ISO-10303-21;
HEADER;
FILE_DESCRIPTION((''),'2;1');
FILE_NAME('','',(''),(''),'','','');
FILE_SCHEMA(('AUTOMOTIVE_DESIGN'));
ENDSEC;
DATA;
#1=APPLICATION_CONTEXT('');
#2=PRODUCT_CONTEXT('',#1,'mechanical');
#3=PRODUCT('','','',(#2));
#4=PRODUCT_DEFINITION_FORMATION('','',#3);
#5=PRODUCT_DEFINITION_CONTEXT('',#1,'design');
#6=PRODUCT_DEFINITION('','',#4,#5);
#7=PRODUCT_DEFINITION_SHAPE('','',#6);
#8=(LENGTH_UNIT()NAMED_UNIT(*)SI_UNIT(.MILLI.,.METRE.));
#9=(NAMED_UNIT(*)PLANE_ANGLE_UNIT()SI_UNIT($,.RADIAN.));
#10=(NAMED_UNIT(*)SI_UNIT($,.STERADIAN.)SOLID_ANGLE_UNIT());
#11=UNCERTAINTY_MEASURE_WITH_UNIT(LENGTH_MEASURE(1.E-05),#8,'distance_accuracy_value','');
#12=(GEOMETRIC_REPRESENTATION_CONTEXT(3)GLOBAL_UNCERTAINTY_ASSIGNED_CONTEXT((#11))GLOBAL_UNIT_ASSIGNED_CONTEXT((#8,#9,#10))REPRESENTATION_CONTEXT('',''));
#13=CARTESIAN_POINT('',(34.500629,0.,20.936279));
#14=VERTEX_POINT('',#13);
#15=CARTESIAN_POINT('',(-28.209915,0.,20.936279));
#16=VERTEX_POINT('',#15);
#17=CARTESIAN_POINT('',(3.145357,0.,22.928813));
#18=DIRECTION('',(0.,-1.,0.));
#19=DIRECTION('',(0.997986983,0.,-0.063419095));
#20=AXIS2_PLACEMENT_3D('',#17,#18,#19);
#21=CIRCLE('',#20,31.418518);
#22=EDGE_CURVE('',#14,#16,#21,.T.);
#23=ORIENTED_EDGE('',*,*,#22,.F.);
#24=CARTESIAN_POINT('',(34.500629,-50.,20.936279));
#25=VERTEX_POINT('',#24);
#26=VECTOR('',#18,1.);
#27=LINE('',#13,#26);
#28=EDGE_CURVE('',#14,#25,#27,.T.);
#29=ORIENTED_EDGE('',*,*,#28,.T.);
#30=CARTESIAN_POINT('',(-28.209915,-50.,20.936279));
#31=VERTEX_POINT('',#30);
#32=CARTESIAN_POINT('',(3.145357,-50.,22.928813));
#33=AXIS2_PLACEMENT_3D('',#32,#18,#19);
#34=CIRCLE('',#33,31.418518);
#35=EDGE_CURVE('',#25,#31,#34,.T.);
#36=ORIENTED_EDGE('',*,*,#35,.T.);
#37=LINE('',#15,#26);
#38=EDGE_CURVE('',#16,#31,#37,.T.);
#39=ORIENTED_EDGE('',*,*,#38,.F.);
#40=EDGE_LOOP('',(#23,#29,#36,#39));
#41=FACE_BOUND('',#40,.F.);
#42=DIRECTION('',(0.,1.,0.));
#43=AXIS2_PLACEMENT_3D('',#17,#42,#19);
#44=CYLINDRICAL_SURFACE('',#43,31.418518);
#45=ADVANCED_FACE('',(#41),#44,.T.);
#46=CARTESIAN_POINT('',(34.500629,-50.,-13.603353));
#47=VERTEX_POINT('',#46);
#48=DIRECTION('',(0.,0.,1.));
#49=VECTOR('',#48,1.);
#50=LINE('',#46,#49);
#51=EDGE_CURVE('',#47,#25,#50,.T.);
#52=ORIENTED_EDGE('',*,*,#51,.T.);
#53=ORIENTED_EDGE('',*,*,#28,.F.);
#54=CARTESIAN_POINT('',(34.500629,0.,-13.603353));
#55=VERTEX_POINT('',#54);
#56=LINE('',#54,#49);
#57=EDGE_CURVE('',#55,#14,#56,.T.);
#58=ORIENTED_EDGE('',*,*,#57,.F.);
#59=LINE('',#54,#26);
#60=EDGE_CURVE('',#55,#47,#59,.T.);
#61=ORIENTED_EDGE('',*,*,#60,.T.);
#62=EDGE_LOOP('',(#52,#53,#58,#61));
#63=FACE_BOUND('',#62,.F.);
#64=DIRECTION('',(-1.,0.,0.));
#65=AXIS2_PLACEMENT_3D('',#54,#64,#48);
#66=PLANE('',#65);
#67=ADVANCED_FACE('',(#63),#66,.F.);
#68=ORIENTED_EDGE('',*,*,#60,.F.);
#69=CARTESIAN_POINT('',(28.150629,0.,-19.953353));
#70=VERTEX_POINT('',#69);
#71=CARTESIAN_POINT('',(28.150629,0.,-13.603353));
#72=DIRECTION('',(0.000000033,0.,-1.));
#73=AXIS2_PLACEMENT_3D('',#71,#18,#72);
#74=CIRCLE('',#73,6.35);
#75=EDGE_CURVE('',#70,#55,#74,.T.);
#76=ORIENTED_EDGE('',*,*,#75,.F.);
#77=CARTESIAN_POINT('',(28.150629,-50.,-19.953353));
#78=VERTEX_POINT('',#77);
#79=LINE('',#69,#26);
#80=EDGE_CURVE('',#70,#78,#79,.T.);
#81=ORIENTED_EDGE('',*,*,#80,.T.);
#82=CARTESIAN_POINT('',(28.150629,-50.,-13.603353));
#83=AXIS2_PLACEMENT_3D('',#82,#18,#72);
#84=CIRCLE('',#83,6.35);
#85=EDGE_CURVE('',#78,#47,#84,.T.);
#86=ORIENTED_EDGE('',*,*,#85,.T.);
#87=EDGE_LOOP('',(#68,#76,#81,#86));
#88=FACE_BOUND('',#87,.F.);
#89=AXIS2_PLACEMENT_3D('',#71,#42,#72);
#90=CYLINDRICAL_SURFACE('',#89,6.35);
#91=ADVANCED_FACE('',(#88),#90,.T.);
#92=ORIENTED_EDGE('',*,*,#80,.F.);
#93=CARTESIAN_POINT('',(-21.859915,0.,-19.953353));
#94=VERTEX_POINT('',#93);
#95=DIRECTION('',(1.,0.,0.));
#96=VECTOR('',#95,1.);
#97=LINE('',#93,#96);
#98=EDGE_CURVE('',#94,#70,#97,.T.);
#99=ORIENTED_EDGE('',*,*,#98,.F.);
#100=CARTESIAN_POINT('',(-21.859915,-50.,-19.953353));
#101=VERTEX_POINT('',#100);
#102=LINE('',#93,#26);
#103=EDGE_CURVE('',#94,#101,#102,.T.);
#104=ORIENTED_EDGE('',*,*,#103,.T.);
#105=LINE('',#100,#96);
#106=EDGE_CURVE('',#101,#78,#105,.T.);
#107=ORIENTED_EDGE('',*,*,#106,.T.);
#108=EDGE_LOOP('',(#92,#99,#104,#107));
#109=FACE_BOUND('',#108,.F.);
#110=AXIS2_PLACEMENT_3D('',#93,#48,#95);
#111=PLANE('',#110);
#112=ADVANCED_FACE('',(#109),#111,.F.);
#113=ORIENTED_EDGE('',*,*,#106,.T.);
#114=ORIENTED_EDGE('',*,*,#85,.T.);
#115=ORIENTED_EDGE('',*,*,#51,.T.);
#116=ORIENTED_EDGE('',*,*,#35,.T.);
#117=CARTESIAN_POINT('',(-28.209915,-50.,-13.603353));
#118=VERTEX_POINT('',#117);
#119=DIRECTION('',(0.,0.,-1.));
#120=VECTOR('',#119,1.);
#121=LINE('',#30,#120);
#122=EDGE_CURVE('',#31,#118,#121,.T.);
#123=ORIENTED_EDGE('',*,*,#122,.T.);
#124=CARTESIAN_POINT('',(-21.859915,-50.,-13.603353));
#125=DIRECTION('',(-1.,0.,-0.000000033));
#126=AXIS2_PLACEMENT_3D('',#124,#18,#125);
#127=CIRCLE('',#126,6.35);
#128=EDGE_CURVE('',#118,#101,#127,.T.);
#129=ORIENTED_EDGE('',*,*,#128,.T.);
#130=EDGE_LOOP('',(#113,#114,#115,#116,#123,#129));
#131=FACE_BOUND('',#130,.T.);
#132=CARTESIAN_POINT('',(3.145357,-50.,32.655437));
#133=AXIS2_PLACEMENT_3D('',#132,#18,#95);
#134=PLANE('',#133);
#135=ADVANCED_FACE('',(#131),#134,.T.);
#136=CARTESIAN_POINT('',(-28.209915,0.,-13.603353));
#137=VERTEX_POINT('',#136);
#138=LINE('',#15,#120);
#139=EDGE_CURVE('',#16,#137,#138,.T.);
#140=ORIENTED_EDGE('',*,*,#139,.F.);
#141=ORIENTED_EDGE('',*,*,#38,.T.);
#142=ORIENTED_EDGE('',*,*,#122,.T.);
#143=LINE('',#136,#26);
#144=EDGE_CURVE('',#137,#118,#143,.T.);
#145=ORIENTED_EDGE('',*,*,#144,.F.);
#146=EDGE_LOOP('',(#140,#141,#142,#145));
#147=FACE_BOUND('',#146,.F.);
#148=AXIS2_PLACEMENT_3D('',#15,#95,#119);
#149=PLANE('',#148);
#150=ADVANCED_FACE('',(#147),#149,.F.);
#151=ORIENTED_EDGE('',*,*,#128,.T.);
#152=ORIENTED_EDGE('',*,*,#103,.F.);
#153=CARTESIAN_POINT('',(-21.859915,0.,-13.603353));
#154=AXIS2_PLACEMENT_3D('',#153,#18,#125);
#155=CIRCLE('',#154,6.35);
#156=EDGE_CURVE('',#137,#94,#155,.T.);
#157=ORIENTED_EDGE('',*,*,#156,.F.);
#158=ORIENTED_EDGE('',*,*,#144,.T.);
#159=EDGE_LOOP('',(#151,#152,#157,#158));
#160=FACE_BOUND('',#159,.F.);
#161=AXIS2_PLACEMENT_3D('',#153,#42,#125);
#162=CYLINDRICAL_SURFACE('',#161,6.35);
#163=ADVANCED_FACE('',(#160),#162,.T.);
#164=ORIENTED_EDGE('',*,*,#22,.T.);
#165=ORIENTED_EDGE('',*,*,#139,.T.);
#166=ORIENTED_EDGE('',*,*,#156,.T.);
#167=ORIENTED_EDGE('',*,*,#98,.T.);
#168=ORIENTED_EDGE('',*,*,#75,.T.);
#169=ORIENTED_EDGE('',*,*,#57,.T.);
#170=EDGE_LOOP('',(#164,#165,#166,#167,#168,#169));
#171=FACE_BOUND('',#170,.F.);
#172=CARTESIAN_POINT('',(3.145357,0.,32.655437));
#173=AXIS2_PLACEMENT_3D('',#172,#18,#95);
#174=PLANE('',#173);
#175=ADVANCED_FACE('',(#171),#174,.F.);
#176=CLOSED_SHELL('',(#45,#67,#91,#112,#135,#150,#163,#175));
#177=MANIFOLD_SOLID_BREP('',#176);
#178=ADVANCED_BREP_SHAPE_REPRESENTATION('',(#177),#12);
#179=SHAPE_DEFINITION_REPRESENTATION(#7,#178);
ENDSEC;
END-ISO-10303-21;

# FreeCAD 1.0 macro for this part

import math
import FreeCAD as App
import Part
import Sketcher
from FreeCAD import Vector
Q = App.Units.Quantity

doc = App.newDocument("Part")
body = doc.addObject("PartDesign::Body", "Body")

sketch1 = body.newObject("Sketcher::SketchObject", "Sketch")
sketch1.AttachmentSupport = (doc.getObject("XZ_Plane"), [""])
sketch1.MapMode = "FlatFace"
sketch1.addGeometry(Part.ArcOfCircle(Part.Circle(Vector(3.145357, 22.928813, 0), Vector(0, 0, 1), 31.418518), math.radians(-3.636087), math.radians(183.636087)), False)
sketch1.addGeometry(Part.LineSegment(Vector(-28.209915, 20.936279, 0), Vector(-28.209915, -13.603353, 0)), False)
sketch1.addGeometry(Part.ArcOfCircle(Part.Circle(Vector(-21.859915, -13.603353, 0), Vector(0, 0, 1), 6.35), math.radians(-179.999998), math.radians(-90.000002)), False)
sketch1.addGeometry(Part.LineSegment(Vector(-21.859915, -19.953353, 0), Vector(28.150629, -19.953353, 0)), False)
sketch1.addGeometry(Part.ArcOfCircle(Part.Circle(Vector(28.150629, -13.603353, 0), Vector(0, 0, 1), 6.35), math.radians(-89.999998), math.radians(-0.000002)), False)
sketch1.addGeometry(Part.LineSegment(Vector(34.500629, -13.603353, 0), Vector(34.500629, 20.936279, 0)), False)
sketch1.addConstraint(Sketcher.Constraint("Coincident", 0, 2, 1, 1))
sketch1.addConstraint(Sketcher.Constraint("Tangent", 1, 2, 2, 1))
sketch1.addConstraint(Sketcher.Constraint("Tangent", 2, 2, 3, 1))
sketch1.addConstraint(Sketcher.Constraint("Tangent", 3, 2, 4, 1))
sketch1.addConstraint(Sketcher.Constraint("Tangent", 4, 2, 5, 1))
sketch1.addConstraint(Sketcher.Constraint("Coincident", 5, 2, 0, 1))
sketch1.addConstraint(Sketcher.Constraint("Vertical", 1))
sketch1.addConstraint(Sketcher.Constraint("Horizontal", 3))
sketch1.addConstraint(Sketcher.Constraint("Vertical", 5))
sketch1.addConstraint(Sketcher.Constraint("Equal", 2, 4))
sketch1.addConstraint(Sketcher.Constraint("Horizontal", 0, 2, 5, 2))
sketch1.addConstraint(Sketcher.Constraint("Radius", 2, Q("6.35 mm")))
sketch1.addConstraint(Sketcher.Constraint("Radius", 0, Q("31.418518 mm")))
sketch1.addConstraint(Sketcher.Constraint("DistanceY", 1, 2, 1, 1, Q("34.539632 mm")))
sketch1.addConstraint(Sketcher.Constraint("DistanceX", 3, 1, 3, 2, Q("50.010544 mm")))
sketch1.addConstraint(Sketcher.Constraint("DistanceX", -1, 1, 4, 3, Q("28.150629 mm")))
sketch1.addConstraint(Sketcher.Constraint("DistanceY", -1, 1, 0, 2, Q("20.936279 mm")))
pad1 = body.newObject("PartDesign::Pad", "Pad")
pad1.Profile = sketch1
pad1.Length = 50

doc.recompute()
